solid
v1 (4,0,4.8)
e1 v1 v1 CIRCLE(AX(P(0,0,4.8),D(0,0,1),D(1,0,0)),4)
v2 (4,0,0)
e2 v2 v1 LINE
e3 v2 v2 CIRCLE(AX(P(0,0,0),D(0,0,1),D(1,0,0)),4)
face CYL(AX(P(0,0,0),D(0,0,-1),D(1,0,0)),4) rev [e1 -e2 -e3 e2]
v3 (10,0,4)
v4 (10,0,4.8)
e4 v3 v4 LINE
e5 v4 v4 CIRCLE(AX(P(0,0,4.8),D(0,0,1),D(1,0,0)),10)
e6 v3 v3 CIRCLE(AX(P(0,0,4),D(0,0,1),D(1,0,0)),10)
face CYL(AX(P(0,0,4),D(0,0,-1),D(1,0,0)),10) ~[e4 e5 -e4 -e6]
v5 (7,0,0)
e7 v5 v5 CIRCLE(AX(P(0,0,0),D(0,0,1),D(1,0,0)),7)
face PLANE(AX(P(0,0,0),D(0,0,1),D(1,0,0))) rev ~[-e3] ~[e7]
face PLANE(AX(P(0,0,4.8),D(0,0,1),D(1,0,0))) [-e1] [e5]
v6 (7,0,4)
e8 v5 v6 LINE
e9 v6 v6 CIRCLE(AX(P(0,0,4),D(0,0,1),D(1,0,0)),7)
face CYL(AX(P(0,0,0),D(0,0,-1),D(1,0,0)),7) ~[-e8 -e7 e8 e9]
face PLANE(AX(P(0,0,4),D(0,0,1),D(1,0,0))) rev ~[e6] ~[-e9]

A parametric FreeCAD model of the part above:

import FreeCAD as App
import Part
import Sketcher
from FreeCAD import Vector
Q = App.Units.Quantity

doc = App.newDocument("Part")
body = doc.addObject("PartDesign::Body", "Body")

# Sketch on XY plane
sketch1 = body.newObject("Sketcher::SketchObject", "Sketch")
sketch1.AttachmentSupport = (doc.getObject("XY_Plane"), [""])
sketch1.MapMode = "FlatFace"
sketch1.addGeometry([
    Part.Circle(Vector(0, 0, 0), Vector(0, 0, 1), 7),
    Part.Circle(Vector(0, 0, 0), Vector(0, 0, 1), 4),
], False)
sketch1.addConstraint([
    Sketcher.Constraint("Coincident", 0, 3, -1, 1),
    Sketcher.Constraint("Coincident", 1, 3, -1, 1),
    Sketcher.Constraint("Diameter", 0, Q("14 mm")),
    Sketcher.Constraint("Diameter", 1, Q("8 mm")),
])
pad1 = body.newObject("PartDesign::Pad", "Pad")
pad1.Profile = sketch1
pad1.Length = 4

# Sketch on XY plane
sketch2 = body.newObject("Sketcher::SketchObject", "Sketch001")
sketch2.AttachmentSupport = (doc.getObject("XY_Plane"), [""])
sketch2.MapMode = "FlatFace"
sketch2.AttachmentOffset = App.Placement(Vector(0, 0, 4), App.Rotation())
sketch2.addGeometry([
    Part.Circle(Vector(0, 0, 0), Vector(0, 0, 1), 10),
    Part.Circle(Vector(0, 0, 0), Vector(0, 0, 1), 4),
], False)
sketch2.addConstraint([
    Sketcher.Constraint("Coincident", 0, 3, -1, 1),
    Sketcher.Constraint("Coincident", 1, 3, -1, 1),
    Sketcher.Constraint("Diameter", 0, Q("20 mm")),
    Sketcher.Constraint("Diameter", 1, Q("8 mm")),
])
pad2 = body.newObject("PartDesign::Pad", "Pad001")
pad2.Profile = sketch2
pad2.Length = 0.8

doc.recompute()
